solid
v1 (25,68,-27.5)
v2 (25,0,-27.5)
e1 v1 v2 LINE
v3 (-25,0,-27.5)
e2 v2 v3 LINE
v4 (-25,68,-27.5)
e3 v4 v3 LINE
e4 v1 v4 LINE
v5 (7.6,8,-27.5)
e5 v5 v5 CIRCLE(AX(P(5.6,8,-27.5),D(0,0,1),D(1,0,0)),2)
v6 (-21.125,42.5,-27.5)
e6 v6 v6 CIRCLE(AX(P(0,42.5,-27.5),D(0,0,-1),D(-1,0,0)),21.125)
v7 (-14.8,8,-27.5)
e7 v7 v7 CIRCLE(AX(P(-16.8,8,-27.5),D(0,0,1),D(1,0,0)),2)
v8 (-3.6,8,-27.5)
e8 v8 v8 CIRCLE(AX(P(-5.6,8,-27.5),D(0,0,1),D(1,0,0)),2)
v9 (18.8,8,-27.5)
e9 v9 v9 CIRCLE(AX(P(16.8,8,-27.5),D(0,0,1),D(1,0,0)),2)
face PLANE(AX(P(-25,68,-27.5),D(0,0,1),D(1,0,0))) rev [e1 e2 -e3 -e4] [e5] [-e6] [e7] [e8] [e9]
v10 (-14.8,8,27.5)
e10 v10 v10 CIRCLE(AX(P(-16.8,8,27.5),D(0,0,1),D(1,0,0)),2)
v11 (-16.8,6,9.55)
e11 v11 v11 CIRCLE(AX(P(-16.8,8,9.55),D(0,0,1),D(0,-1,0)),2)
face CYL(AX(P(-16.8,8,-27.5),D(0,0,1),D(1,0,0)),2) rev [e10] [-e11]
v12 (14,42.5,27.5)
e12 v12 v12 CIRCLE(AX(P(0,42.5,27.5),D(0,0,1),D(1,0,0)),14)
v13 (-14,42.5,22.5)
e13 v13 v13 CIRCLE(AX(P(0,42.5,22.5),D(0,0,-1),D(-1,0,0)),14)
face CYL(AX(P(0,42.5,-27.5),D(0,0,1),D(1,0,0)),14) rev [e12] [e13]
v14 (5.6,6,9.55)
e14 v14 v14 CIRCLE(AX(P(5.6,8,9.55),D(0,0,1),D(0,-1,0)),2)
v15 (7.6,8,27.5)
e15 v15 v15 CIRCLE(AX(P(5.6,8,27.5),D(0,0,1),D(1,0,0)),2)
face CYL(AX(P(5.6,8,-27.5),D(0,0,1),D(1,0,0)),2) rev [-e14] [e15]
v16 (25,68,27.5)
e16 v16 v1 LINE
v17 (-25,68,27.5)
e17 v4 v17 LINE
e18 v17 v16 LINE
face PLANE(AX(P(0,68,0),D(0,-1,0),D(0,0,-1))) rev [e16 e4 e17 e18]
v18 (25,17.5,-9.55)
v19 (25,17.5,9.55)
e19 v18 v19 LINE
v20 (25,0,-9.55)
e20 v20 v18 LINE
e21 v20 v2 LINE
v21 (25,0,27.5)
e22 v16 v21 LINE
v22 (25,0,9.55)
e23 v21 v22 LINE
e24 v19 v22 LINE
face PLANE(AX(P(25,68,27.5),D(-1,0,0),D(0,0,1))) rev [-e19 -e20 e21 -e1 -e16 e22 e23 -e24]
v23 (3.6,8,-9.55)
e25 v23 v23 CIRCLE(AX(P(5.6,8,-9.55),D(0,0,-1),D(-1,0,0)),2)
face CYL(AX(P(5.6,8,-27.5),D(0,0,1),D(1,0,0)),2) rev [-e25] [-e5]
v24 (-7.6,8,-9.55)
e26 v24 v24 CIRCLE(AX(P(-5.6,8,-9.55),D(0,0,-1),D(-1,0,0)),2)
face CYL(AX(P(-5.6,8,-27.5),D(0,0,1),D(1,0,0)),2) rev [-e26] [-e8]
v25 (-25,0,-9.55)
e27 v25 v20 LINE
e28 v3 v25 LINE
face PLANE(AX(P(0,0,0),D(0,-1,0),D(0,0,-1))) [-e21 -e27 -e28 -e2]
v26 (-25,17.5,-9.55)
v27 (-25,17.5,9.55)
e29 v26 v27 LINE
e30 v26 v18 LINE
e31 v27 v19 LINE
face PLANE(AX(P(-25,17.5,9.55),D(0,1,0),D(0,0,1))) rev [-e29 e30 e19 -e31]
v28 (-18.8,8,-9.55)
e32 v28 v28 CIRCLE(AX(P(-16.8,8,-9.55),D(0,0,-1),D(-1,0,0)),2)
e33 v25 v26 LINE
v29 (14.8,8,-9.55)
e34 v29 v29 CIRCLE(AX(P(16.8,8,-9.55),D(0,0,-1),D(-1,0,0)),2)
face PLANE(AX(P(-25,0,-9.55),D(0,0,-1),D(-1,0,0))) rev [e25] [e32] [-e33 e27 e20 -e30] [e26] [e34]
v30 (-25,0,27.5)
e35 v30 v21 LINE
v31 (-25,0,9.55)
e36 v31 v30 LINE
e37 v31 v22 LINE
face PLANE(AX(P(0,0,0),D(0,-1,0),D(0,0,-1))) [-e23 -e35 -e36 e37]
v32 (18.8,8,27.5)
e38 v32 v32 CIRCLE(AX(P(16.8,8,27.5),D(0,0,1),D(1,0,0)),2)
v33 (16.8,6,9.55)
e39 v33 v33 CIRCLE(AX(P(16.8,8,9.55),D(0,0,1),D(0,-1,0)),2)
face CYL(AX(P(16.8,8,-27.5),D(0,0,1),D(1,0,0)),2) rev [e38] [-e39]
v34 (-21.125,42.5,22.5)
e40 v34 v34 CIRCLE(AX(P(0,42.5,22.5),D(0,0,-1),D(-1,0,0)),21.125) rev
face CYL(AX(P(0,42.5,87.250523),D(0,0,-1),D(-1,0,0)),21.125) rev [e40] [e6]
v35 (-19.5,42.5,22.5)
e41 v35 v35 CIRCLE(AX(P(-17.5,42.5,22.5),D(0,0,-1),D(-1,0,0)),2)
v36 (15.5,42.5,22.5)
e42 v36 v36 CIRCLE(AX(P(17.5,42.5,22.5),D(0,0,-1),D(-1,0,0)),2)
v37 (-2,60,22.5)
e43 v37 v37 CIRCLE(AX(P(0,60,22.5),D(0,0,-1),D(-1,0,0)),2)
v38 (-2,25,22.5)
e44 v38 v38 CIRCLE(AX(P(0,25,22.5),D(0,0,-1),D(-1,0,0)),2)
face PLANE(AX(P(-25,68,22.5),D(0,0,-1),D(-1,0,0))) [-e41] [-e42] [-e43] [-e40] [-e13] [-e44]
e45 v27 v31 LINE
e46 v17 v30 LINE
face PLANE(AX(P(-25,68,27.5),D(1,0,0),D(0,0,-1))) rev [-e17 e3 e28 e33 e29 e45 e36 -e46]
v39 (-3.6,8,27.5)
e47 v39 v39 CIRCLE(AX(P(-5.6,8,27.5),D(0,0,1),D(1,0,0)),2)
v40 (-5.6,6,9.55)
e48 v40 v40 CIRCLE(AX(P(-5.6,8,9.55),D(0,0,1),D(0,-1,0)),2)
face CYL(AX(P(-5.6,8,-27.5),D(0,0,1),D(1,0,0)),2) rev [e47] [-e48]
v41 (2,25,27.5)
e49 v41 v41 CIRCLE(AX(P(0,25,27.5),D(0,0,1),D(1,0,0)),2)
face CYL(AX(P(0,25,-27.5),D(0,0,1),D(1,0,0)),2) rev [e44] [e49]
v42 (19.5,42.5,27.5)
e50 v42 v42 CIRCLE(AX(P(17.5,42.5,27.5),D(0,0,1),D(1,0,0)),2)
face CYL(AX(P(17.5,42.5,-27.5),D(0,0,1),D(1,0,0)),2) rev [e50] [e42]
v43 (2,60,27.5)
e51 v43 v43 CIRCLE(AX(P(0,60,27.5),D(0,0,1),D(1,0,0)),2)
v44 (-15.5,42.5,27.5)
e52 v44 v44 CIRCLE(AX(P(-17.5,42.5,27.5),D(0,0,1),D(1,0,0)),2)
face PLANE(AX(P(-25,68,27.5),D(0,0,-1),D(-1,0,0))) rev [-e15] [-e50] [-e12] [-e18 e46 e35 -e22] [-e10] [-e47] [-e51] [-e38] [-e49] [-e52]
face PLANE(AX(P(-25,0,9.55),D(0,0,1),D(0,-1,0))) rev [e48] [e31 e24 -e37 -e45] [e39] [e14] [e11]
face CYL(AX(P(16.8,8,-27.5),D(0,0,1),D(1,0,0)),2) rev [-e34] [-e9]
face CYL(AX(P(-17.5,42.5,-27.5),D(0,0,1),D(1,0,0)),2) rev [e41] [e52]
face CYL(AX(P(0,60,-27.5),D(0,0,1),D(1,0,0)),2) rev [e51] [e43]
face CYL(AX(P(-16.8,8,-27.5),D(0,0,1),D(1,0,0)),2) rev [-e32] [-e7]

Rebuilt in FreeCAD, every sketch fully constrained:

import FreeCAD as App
import Part
import Sketcher
from FreeCAD import Vector
Q = App.Units.Quantity


def add_polygon(sketch, points):
    """Adds a closed chain of lines whose ends are joined by coincident constraints."""
    first, n = sketch.GeometryCount, len(points)
    for a, b in zip(points, points[1:] + points[:1]):
        sketch.addGeometry(Part.LineSegment(App.Vector(*a, 0), App.Vector(*b, 0)), False)
    for i in range(n):
        sketch.addConstraint(Sketcher.Constraint("Coincident", first + i, 2, first + (i + 1) % n, 1))

doc = App.newDocument("Part")
body = doc.addObject("PartDesign::Body", "Body")

# Sketch on XZ plane
sketch1 = body.newObject("Sketcher::SketchObject", "Sketch")
sketch1.AttachmentSupport = (doc.getObject("XZ_Plane"), [""])
sketch1.MapMode = "FlatFace"
add_polygon(sketch1, [(-25, -28), (-25, 28), (25, 28), (25, -28)])  # lines 0-3
sketch1.addConstraint(Sketcher.Constraint("Vertical", 0))
sketch1.addConstraint(Sketcher.Constraint("Horizontal", 1))
sketch1.addConstraint(Sketcher.Constraint("Vertical", 2))
sketch1.addConstraint(Sketcher.Constraint("Horizontal", 3))
sketch1.addConstraint(Sketcher.Constraint("Symmetric", 0, 2, 2, 2, -1, 1))
sketch1.addConstraint(Sketcher.Constraint("DistanceX", 1, 1, 1, 2, Q("50 mm")))
sketch1.addConstraint(Sketcher.Constraint("DistanceY", 0, 1, 0, 2, Q("55 mm")))
pad1 = body.newObject("PartDesign::Pad", "Pad")
pad1.Profile = sketch1
pad1.Length = 68
pad1.Reversed = True

# Sketch on XY plane
sketch2 = body.newObject("Sketcher::SketchObject", "Sketch001")
sketch2.AttachmentSupport = (doc.getObject("XY_Plane"), [""])
sketch2.MapMode = "FlatFace"
sketch2.AttachmentOffset = App.Placement(Vector(0, 0, -27.5), App.Rotation())
sketch2.addGeometry(Part.Circle(Vector(0, 42, 0), Vector(0, 0, 1), 21), False)
sketch2.addConstraint(Sketcher.Constraint("PointOnObject", 0, 3, -2))
sketch2.addConstraint(Sketcher.Constraint("Diameter", 0, Q("42.25 mm")))
sketch2.addConstraint(Sketcher.Constraint("DistanceY", -1, 1, 0, 3, Q("42.5 mm")))
pocket1 = body.newObject("PartDesign::Pocket", "Pocket")
pocket1.Profile = sketch2
pocket1.Length = 50
pocket1.Reversed = True

# Sketch on XY plane
sketch3 = body.newObject("Sketcher::SketchObject", "Sketch002")
sketch3.AttachmentSupport = (doc.getObject("XY_Plane"), [""])
sketch3.MapMode = "FlatFace"
sketch3.AttachmentOffset = App.Placement(Vector(0, 0, 27.5), App.Rotation())
sketch3.addGeometry(Part.Circle(Vector(0, 42.5, 0), Vector(0, 0, 1), 14), False)
sketch3.addGeometry(Part.Circle(Vector(0, 60, 0), Vector(0, 0, 1), 2), False)
sketch3.addGeometry(Part.Circle(Vector(17.5, 42.5, 0), Vector(0, 0, 1), 2), False)
sketch3.addGeometry(Part.Circle(Vector(0, 25, 0), Vector(0, 0, 1), 2), False)
sketch3.addGeometry(Part.Circle(Vector(-17.5, 42.5, 0), Vector(0, 0, 1), 2), False)
sketch3.addConstraint(Sketcher.Constraint("Equal", 1, 2))
sketch3.addConstraint(Sketcher.Constraint("Equal", 2, 3))
sketch3.addConstraint(Sketcher.Constraint("Equal", 3, 4))
sketch3.addConstraint(Sketcher.Constraint("Symmetric", 2, 3, 4, 3, -2))
sketch3.addConstraint(Sketcher.Constraint("PointOnObject", 0, 3, -2))
sketch3.addConstraint(Sketcher.Constraint("PointOnObject", 1, 3, -2))
sketch3.addConstraint(Sketcher.Constraint("PointOnObject", 3, 3, -2))
sketch3.addConstraint(Sketcher.Constraint("Horizontal", 0, 3, 2, 3))
sketch3.addConstraint(Sketcher.Constraint("Diameter", 0, Q("28 mm")))
sketch3.addConstraint(Sketcher.Constraint("Diameter", 1, Q("4 mm")))
sketch3.addConstraint(Sketcher.Constraint("DistanceY", -1, 1, 1, 3, Q("60 mm")))
sketch3.addConstraint(Sketcher.Constraint("DistanceY", -1, 1, 3, 3, Q("25 mm")))
sketch3.addConstraint(Sketcher.Constraint("DistanceX", 4, 3, 2, 3, Q("35 mm")))
sketch3.addConstraint(Sketcher.Constraint("DistanceY", -1, 1, 0, 3, Q("42.5 mm")))
pocket2 = body.newObject("PartDesign::Pocket", "Pocket001")
pocket2.Profile = sketch3
pocket2.Type = "ThroughAll"

# Sketch on YZ plane
sketch4 = body.newObject("Sketcher::SketchObject", "Sketch003")
sketch4.AttachmentSupport = (doc.getObject("YZ_Plane"), [""])
sketch4.MapMode = "FlatFace"
sketch4.AttachmentOffset = App.Placement(Vector(0, 0, 25), App.Rotation())
add_polygon(sketch4, [(18, 10), (0, 10), (0, -10), (18, -10)])  # lines 0-3
sketch4.addConstraint(Sketcher.Constraint("Horizontal", 0))
sketch4.addConstraint(Sketcher.Constraint("Vertical", 1))
sketch4.addConstraint(Sketcher.Constraint("Horizontal", 2))
sketch4.addConstraint(Sketcher.Constraint("Vertical", 3))
sketch4.addConstraint(Sketcher.Constraint("Symmetric", 0, 2, 1, 2, -1, 1))
sketch4.addConstraint(Sketcher.Constraint("DistanceX", 0, 2, 0, 1, Q("17.5 mm")))
sketch4.addConstraint(Sketcher.Constraint("DistanceY", 1, 2, 1, 1, Q("19.1 mm")))
pocket3 = body.newObject("PartDesign::Pocket", "Pocket002")
pocket3.Profile = sketch4
pocket3.Type = "ThroughAll"

# Sketch on XY plane
sketch5 = body.newObject("Sketcher::SketchObject", "Sketch004")
sketch5.AttachmentSupport = (doc.getObject("XY_Plane"), [""])
sketch5.MapMode = "FlatFace"
sketch5.AttachmentOffset = App.Placement(Vector(0, 0, 27.5), App.Rotation())
sketch5.addGeometry(Part.Circle(Vector(-16.8, 8, 0), Vector(0, 0, 1), 2), False)
sketch5.addGeometry(Part.Circle(Vector(-5.6, 8, 0), Vector(0, 0, 1), 2), False)
sketch5.addGeometry(Part.Circle(Vector(5.6, 8, 0), Vector(0, 0, 1), 2), False)
sketch5.addGeometry(Part.Circle(Vector(16.8, 8, 0), Vector(0, 0, 1), 2), False)
sketch5.addConstraint(Sketcher.Constraint("Equal", 0, 1))
sketch5.addConstraint(Sketcher.Constraint("Equal", 1, 2))
sketch5.addConstraint(Sketcher.Constraint("Equal", 2, 3))
sketch5.addConstraint(Sketcher.Constraint("Symmetric", 1, 3, 2, 3, -2))
sketch5.addConstraint(Sketcher.Constraint("Symmetric", 0, 3, 3, 3, -2))
sketch5.addConstraint(Sketcher.Constraint("Horizontal", 0, 3, 1, 3))
sketch5.addConstraint(Sketcher.Constraint("Diameter", 0, Q("4 mm")))
sketch5.addConstraint(Sketcher.Constraint("DistanceY", -1, 1, 0, 3, Q("8 mm")))
sketch5.addConstraint(Sketcher.Constraint("DistanceX", 0, 3, -1, 1, Q("16.8 mm")))
sketch5.addConstraint(Sketcher.Constraint("DistanceX", 1, 3, -1, 1, Q("5.6 mm")))
pocket4 = body.newObject("PartDesign::Pocket", "Pocket003")
pocket4.Profile = sketch5
pocket4.Type = "ThroughAll"

doc.recompute()
